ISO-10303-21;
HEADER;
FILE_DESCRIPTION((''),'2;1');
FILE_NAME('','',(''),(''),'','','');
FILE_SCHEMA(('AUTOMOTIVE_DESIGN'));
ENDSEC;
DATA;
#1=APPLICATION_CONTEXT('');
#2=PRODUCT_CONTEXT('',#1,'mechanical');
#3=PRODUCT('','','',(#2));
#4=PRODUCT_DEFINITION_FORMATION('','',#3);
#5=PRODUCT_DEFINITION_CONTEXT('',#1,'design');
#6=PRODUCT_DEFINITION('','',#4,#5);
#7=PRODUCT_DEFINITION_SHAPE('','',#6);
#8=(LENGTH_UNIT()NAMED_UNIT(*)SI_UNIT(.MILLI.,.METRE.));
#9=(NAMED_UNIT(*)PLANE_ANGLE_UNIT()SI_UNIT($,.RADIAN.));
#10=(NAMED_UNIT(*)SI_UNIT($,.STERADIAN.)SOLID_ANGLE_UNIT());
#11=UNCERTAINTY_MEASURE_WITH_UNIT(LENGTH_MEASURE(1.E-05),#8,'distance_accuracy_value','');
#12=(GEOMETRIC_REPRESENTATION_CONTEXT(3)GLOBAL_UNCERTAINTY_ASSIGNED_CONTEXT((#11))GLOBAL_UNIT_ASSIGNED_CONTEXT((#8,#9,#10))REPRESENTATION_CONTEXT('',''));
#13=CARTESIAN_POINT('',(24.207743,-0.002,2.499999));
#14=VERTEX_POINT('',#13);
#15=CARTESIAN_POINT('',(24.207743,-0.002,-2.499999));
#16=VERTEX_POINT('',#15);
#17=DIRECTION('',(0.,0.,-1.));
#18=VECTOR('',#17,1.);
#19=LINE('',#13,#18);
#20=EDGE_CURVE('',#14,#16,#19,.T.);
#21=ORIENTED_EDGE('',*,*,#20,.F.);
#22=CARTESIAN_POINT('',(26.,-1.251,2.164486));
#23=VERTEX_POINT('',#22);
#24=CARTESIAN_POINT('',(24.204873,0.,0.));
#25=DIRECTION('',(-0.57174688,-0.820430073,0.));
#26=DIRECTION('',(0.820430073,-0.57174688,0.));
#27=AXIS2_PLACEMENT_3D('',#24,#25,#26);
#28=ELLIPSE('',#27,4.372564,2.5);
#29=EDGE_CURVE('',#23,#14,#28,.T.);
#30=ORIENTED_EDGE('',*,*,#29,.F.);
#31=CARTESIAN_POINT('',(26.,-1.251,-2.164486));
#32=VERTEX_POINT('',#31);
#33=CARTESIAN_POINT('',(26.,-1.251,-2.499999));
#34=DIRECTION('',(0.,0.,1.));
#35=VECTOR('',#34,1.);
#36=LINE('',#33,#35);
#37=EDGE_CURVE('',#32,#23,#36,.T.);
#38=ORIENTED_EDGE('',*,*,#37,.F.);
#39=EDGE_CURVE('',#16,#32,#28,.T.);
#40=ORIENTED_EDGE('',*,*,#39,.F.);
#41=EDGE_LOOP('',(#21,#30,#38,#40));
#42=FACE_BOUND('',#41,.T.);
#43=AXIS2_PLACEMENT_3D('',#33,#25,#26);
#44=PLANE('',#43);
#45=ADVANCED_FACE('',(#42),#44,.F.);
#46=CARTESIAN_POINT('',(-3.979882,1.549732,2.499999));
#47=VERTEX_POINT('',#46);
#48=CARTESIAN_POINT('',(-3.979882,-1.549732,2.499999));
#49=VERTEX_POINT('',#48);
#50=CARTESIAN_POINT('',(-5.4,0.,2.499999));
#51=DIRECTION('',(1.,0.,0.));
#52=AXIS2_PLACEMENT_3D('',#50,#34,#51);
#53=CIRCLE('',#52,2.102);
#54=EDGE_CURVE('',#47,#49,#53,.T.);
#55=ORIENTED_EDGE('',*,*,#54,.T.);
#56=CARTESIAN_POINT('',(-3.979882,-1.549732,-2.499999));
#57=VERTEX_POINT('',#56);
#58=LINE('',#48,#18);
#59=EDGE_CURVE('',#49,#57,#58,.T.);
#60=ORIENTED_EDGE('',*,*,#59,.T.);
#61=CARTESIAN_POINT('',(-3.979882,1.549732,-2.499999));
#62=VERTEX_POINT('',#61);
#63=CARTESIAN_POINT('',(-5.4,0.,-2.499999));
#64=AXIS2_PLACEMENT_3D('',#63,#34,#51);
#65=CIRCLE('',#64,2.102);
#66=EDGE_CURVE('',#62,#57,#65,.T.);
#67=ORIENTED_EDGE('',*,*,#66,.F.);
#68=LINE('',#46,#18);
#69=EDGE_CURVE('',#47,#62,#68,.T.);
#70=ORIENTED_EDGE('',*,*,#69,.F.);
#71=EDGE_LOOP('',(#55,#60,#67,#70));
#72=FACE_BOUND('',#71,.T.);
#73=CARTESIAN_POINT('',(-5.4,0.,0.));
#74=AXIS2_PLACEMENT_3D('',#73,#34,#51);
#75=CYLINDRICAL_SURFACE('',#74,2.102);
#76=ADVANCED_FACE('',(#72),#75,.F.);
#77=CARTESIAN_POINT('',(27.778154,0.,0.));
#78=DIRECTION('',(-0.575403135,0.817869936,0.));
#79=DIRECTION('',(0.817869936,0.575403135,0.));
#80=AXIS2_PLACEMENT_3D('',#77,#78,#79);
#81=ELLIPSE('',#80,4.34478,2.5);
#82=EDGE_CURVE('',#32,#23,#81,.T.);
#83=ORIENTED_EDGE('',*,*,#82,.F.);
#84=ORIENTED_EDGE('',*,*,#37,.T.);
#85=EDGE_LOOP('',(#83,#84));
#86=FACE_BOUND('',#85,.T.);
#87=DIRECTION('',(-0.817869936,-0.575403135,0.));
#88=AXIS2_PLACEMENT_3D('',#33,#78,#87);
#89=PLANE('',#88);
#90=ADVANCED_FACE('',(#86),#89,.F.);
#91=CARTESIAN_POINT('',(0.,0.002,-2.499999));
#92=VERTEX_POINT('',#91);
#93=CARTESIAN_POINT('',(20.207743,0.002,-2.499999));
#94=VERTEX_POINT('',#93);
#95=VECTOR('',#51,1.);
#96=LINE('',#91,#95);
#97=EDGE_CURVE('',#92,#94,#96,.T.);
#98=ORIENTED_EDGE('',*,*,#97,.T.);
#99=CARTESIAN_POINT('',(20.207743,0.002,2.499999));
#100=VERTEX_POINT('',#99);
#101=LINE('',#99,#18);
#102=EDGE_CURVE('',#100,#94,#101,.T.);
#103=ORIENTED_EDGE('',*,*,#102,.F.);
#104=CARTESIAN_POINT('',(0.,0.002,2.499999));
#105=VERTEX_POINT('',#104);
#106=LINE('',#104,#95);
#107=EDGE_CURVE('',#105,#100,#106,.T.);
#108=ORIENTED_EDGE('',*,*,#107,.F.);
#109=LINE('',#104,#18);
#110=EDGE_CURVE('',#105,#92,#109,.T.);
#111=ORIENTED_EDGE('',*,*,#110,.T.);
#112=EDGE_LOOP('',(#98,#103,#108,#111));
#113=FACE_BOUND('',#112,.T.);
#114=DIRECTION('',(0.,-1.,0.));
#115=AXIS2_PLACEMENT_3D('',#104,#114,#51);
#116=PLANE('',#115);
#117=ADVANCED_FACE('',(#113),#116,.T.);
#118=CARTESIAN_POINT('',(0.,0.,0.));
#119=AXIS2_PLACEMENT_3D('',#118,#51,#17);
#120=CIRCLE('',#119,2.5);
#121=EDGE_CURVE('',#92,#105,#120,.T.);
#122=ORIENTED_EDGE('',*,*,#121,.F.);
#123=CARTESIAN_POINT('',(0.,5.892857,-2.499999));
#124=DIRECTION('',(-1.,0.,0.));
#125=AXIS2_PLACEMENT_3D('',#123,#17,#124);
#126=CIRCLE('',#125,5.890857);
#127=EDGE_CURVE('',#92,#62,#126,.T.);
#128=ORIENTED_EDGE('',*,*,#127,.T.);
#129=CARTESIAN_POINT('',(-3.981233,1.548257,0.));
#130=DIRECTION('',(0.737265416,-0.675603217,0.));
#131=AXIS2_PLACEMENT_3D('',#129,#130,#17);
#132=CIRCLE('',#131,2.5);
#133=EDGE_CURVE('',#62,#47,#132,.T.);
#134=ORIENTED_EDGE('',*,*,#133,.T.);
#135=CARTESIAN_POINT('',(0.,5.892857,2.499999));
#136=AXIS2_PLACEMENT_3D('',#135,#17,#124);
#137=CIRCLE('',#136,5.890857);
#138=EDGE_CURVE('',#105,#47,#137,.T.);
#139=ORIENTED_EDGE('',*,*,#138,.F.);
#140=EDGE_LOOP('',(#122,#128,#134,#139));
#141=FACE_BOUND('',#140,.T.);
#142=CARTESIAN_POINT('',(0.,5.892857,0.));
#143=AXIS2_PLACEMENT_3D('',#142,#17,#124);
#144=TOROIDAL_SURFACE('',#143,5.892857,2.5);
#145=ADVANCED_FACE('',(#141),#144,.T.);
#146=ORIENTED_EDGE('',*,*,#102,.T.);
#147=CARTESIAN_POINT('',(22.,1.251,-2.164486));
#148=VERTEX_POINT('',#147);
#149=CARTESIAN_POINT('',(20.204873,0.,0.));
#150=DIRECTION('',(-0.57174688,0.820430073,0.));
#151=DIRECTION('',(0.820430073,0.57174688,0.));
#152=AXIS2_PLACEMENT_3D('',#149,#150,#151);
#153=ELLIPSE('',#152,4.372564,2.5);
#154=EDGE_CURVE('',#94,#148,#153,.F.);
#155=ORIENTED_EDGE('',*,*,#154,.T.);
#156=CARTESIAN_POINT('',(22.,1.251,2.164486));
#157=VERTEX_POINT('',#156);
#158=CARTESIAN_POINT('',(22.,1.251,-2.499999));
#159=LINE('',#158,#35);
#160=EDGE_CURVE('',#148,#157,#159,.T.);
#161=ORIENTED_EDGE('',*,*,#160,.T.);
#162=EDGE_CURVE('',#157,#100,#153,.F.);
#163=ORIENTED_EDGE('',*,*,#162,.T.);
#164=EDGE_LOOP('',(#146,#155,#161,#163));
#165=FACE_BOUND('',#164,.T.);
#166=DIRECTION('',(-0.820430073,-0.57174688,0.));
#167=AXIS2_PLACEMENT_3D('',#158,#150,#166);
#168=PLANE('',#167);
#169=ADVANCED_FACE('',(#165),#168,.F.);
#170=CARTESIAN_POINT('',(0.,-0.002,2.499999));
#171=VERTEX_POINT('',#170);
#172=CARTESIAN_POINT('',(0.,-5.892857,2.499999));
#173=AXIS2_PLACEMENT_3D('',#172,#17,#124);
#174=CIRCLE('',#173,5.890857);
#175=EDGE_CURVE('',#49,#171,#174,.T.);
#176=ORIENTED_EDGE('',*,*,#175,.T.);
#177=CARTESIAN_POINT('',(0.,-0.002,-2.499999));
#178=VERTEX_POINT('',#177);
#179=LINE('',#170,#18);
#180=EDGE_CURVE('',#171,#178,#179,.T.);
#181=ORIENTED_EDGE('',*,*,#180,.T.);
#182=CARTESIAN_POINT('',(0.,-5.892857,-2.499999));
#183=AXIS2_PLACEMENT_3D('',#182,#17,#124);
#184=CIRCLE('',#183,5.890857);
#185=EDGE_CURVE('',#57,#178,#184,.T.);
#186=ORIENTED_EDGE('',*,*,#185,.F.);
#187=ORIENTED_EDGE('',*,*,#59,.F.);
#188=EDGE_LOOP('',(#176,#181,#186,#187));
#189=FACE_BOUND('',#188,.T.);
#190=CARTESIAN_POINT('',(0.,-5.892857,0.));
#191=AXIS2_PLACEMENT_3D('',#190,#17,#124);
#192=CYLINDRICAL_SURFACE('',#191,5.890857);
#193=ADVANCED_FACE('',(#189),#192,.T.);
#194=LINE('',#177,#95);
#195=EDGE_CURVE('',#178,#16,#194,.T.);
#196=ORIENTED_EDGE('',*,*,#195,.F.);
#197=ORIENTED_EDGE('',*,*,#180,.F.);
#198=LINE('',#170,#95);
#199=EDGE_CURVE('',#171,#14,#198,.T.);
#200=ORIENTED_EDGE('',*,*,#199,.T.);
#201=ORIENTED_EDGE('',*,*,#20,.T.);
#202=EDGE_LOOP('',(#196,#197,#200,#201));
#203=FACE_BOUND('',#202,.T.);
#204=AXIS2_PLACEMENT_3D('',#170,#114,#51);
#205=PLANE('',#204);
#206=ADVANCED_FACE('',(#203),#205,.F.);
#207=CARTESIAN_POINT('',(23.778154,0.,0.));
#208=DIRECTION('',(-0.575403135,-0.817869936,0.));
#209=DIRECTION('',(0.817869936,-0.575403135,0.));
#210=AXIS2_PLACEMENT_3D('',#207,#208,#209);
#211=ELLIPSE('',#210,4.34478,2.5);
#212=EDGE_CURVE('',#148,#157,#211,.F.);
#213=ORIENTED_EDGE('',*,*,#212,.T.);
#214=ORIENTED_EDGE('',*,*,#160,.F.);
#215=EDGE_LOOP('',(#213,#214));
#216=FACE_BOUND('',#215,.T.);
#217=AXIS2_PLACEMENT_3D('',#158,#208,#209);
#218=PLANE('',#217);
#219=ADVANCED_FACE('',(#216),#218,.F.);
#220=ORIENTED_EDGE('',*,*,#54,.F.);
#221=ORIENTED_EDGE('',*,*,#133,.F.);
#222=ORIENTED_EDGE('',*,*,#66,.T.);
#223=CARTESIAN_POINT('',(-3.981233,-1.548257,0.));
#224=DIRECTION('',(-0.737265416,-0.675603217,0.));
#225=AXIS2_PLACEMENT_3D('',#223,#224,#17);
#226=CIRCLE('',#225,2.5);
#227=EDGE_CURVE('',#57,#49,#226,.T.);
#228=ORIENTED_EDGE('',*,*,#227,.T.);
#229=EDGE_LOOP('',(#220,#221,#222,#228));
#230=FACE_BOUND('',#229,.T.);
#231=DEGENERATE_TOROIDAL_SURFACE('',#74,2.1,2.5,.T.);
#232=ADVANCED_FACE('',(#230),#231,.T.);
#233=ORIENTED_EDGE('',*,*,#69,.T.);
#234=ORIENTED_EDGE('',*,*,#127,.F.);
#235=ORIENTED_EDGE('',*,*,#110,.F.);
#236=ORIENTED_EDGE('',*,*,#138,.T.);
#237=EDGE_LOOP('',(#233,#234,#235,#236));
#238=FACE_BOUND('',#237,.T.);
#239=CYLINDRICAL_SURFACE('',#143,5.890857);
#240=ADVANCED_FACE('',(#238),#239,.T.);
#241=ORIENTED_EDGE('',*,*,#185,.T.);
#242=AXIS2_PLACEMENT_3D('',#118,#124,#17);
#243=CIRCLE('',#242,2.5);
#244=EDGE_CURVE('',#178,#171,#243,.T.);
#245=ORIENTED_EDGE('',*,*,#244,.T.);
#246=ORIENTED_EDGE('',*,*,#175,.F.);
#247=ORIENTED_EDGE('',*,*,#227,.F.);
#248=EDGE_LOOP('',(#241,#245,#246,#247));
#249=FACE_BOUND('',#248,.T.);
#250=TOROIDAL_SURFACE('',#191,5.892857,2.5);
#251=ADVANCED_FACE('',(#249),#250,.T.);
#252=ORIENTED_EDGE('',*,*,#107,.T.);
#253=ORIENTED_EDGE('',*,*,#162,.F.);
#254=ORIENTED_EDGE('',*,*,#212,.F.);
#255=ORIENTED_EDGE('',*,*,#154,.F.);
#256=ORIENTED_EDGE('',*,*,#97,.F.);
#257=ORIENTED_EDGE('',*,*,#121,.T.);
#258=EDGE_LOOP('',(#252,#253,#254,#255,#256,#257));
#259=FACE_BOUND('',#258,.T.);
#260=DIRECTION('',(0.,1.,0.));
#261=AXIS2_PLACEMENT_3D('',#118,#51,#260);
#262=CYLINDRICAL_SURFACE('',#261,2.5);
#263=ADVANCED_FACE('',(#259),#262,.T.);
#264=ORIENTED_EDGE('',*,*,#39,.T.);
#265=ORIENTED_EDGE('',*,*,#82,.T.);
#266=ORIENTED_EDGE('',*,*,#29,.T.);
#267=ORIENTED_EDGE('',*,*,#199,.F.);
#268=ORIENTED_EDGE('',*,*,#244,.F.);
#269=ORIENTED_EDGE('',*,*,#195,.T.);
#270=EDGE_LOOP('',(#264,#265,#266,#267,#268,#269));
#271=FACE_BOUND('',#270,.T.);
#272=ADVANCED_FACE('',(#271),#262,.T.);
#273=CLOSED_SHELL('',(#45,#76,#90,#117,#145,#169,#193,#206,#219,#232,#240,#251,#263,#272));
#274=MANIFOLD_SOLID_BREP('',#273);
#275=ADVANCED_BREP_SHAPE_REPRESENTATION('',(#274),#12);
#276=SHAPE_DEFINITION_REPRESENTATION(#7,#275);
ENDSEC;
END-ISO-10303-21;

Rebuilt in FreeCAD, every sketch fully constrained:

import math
import FreeCAD as App
import Part
import Sketcher
from FreeCAD import Vector

doc = App.newDocument("Part")
params = doc.addObject("Spreadsheet::Sheet", "Params")
for row, (alias, value) in enumerate([
    ("sketch1_radius", "2.5 mm"),
    ("sketch2_radius", "4.6 mm"),
    ("sketch2_width", "22 mm"),
    ("sketch2_width2", "26 mm"),
    ("sketch3_width", "4 mm"),
    ("sketch3_height", "5.02 mm"),
], start=1):
    params.set(f"A{row}", alias)
    params.set(f"B{row}", "=" + value)
    params.setAlias(f"B{row}", alias)

body = doc.addObject("PartDesign::Body", "Body")

sketch1 = body.newObject("Sketcher::SketchObject", "Sketch")
sketch1.AttachmentSupport = (doc.getObject("YZ_Plane"), [""])
sketch1.MapMode = "FlatFace"
sketch1.AttachmentOffset = App.Placement(Vector(0, 0, 22), App.Rotation())
sketch1.addGeometry([
    Part.LineSegment(Vector(0.002, 2.499999, 0), Vector(0.002, -2.499999, 0)),
    Part.ArcOfCircle(Part.Circle(Vector(0, 0, 0), Vector(0, 0, 1), 2.5), math.radians(-89.954163), math.radians(89.954163)),
], False)
sketch1.addConstraint([
    Sketcher.Constraint("Coincident", 0, 1, 1, 2),
    Sketcher.Constraint("Coincident", 1, 1, 0, 2),
    Sketcher.Constraint("Vertical", 0),
    Sketcher.Constraint("Coincident", 1, 3, -1, 1),
    Sketcher.Constraint("Radius", 1, 2.5),
    Sketcher.Constraint("DistanceX", -1, 1, 0, 1, 0.002),
])
sketch1.setExpression("Constraints[4]", "Params.sketch1_radius")

sketch2 = body.newObject("Sketcher::SketchObject", "Sketch001")
sketch2.AttachmentSupport = (doc.getObject("XY_Plane"), [""])
sketch2.MapMode = "FlatFace"
sketch2.addGeometry([
    Part.LineSegment(Vector(22, 2.5, 0), Vector(0, 2.5, 0)),
    Part.ArcOfCircle(Part.Circle(Vector(0, 5.892857, 0), Vector(0, 0, 1), 3.392857), math.radians(-132.501011), math.radians(-90)),
    Part.ArcOfCircle(Part.Circle(Vector(-5.4, 0, 0), Vector(0, 0, 1), 4.6), math.radians(47.498989), math.radians(312.501011)),
    Part.ArcOfCircle(Part.Circle(Vector(0, -5.892857, 0), Vector(0, 0, 1), 3.392857), math.radians(90), math.radians(132.501011)),
    Part.LineSegment(Vector(0, -2.5, 0), Vector(26, -2.5, 0)),
], False)
sketch2.addConstraint([
    Sketcher.Constraint("Tangent", 0, 2, 1, 2),
    Sketcher.Constraint("Tangent", 1, 1, 2, 1),
    Sketcher.Constraint("Tangent", 2, 2, 3, 2),
    Sketcher.Constraint("Tangent", 3, 1, 4, 1),
    Sketcher.Constraint("Horizontal", 0),
    Sketcher.Constraint("Horizontal", 4),
    Sketcher.Constraint("Equal", 1, 3),
    Sketcher.Constraint("Symmetric", 1, 3, 3, 3, -1, 1),
    Sketcher.Constraint("PointOnObject", 1, 3, -2),
    Sketcher.Constraint("Radius", 2, 4.6),
    Sketcher.Constraint("DistanceX", 0, 2, 0, 1, 22.0),
    Sketcher.Constraint("DistanceX", 4, 1, 4, 2, 26.0),
    Sketcher.Constraint("DistanceY", 3, 1, 0, 2, 5.0),
    Sketcher.Constraint("DistanceX", 2, 3, -1, 1, 5.4),
])
sketch2.setExpression("Constraints[9]", "Params.sketch2_radius")
sketch2.setExpression("Constraints[10]", "Params.sketch2_width")
sketch2.setExpression("Constraints[11]", "Params.sketch2_width2")
doc.recompute()

additivepipe = body.newObject("PartDesign::AdditivePipe", "AdditivePipe")
additivepipe.Profile = sketch1
additivepipe.Spine = (sketch2, ["Edge1", "Edge2", "Edge3", "Edge4", "Edge5"])

sketch3 = body.newObject("Sketcher::SketchObject", "Sketch002")
sketch3.AttachmentSupport = (doc.getObject("XY_Plane"), [""])
sketch3.MapMode = "FlatFace"
sketch3.addGeometry([
    Part.LineSegment(Vector(20.210475, 2.51, 0), Vector(22, 1.251, 0)),
    Part.LineSegment(Vector(22, 1.251, 0), Vector(20.204873, 0, 0)),
    Part.LineSegment(Vector(20.204873, 0, 0), Vector(24.204873, 0, 0)),
    Part.LineSegment(Vector(24.204873, 0, 0), Vector(26, -1.251, 0)),
    Part.LineSegment(Vector(26, -1.251, 0), Vector(24.210475, -2.51, 0)),
    Part.LineSegment(Vector(24.210475, -2.51, 0), Vector(26.01, -2.51, 0)),
    Part.LineSegment(Vector(26.01, -2.51, 0), Vector(26.01, 2.51, 0)),
    Part.LineSegment(Vector(26.01, 2.51, 0), Vector(20.210475, 2.51, 0)),
], False)
sketch3.addConstraint([
    Sketcher.Constraint("Coincident", 0, 2, 1, 1),
    Sketcher.Constraint("Coincident", 1, 2, 2, 1),
    Sketcher.Constraint("Coincident", 2, 2, 3, 1),
    Sketcher.Constraint("Coincident", 3, 2, 4, 1),
    Sketcher.Constraint("Coincident", 4, 2, 5, 1),
    Sketcher.Constraint("Coincident", 5, 2, 6, 1),
    Sketcher.Constraint("Coincident", 6, 2, 7, 1),
    Sketcher.Constraint("Coincident", 7, 2, 0, 1),
    Sketcher.Constraint("Horizontal", 2),
    Sketcher.Constraint("Horizontal", 5),
    Sketcher.Constraint("Vertical", 6),
    Sketcher.Constraint("Horizontal", 7),
    Sketcher.Constraint("PointOnObject", 1, 2, -1),
    Sketcher.Constraint("Equal", 0, 1),
    Sketcher.Constraint("Equal", 1, 3),
    Sketcher.Constraint("Equal", 3, 4),
    Sketcher.Constraint("DistanceX", 2, 1, 2, 2, 4.0),
    Sketcher.Constraint("DistanceX", -1, 1, 0, 2, 22.0),
    Sketcher.Constraint("DistanceX", -1, 1, 3, 2, 26.0),
    Sketcher.Constraint("DistanceX", 7, 2, 4, 2, 4.0),
    Sketcher.Constraint("DistanceY", 6, 1, 6, 2, 5.02),
    Sketcher.Constraint("DistanceX", -1, 1, 5, 2, 26.01),
    Sketcher.Constraint("DistanceY", -1, 1, 0, 2, 1.251),
    Sketcher.Constraint("Distance", 0, 2.188031),
])
sketch3.setExpression("Constraints[16]", "Params.sketch3_width")
sketch3.setExpression("Constraints[20]", "Params.sketch3_height")
pocket1 = body.newObject("PartDesign::Pocket", "Pocket")
pocket1.Profile = sketch3
pocket1.Type = "ThroughAll"
pocket1.Midplane = True

doc.recompute()
